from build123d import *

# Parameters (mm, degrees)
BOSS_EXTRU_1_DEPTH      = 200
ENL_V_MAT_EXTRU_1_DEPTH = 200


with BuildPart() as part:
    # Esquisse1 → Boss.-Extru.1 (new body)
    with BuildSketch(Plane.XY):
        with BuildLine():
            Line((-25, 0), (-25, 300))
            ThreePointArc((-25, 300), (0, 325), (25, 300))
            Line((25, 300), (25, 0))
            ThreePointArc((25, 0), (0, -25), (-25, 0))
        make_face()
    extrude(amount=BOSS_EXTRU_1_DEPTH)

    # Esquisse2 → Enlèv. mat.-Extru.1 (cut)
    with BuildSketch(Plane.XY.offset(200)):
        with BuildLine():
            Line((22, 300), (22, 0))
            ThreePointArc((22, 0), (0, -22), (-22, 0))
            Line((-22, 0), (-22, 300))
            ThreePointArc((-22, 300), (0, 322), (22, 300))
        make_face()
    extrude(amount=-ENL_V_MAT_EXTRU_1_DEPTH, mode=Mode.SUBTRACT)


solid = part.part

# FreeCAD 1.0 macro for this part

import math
import FreeCAD as App
import Part
import Sketcher
Q = App.Units.Quantity

doc = App.newDocument("Part")
body = doc.addObject("PartDesign::Body", "Body")

# Sketch on XY plane
sketch1 = doc.addObject("Sketcher::SketchObject", "Sketch")
body.addObject(sketch1)
sketch1.AttachmentSupport = (doc.XY_Plane, [""])
sketch1.MapMode = "FlatFace"
sketch1.addGeometry(Part.LineSegment(App.Vector(-25, 300, 0), App.Vector(-25, 0, 0)), False)
sketch1.addGeometry(Part.ArcOfCircle(Part.Circle(App.Vector(0, 0, 0), App.Vector(0, 0, 1), 25), math.radians(180), math.radians(360)), False)
sketch1.addGeometry(Part.LineSegment(App.Vector(25, 0, 0), App.Vector(25, 300, 0)), False)
sketch1.addGeometry(Part.ArcOfCircle(Part.Circle(App.Vector(0, 300, 0), App.Vector(0, 0, 1), 25), math.radians(0), math.radians(180)), False)
sketch1.addConstraint(Sketcher.Constraint("Tangent", 0, 2, 1, 1))
sketch1.addConstraint(Sketcher.Constraint("Tangent", 1, 2, 2, 1))
sketch1.addConstraint(Sketcher.Constraint("Tangent", 2, 2, 3, 1))
sketch1.addConstraint(Sketcher.Constraint("Tangent", 3, 2, 0, 1))
sketch1.addConstraint(Sketcher.Constraint("Vertical", 0))
sketch1.addConstraint(Sketcher.Constraint("Vertical", 2))
sketch1.addConstraint(Sketcher.Constraint("Coincident", 1, 3, -1, 1))
sketch1.addConstraint(Sketcher.Constraint("Radius", 1, Q("25 mm")))
sketch1.addConstraint(Sketcher.Constraint("DistanceY", 0, 2, 0, 1, Q("300 mm")))
pad1 = doc.addObject("PartDesign::Pad", "Pad")
body.addObject(pad1)
pad1.Profile = sketch1
pad1.Length = 200

# Sketch on XY plane
sketch2 = doc.addObject("Sketcher::SketchObject", "Sketch001")
body.addObject(sketch2)
sketch2.AttachmentSupport = (doc.XY_Plane, [""])
sketch2.MapMode = "FlatFace"
sketch2.AttachmentOffset = App.Placement(App.Vector(0, 0, 200), App.Rotation())
sketch2.addGeometry(Part.LineSegment(App.Vector(22, 0, 0), App.Vector(22, 300, 0)), False)
sketch2.addGeometry(Part.ArcOfCircle(Part.Circle(App.Vector(0, 300, 0), App.Vector(0, 0, 1), 22), math.radians(0), math.radians(180)), False)
sketch2.addGeometry(Part.LineSegment(App.Vector(-22, 300, 0), App.Vector(-22, 0, 0)), False)
sketch2.addGeometry(Part.ArcOfCircle(Part.Circle(App.Vector(0, 0, 0), App.Vector(0, 0, 1), 22), math.radians(180), math.radians(360)), False)
sketch2.addConstraint(Sketcher.Constraint("Tangent", 0, 2, 1, 1))
sketch2.addConstraint(Sketcher.Constraint("Tangent", 1, 2, 2, 1))
sketch2.addConstraint(Sketcher.Constraint("Tangent", 2, 2, 3, 1))
sketch2.addConstraint(Sketcher.Constraint("Tangent", 3, 2, 0, 1))
sketch2.addConstraint(Sketcher.Constraint("Vertical", 0))
sketch2.addConstraint(Sketcher.Constraint("Vertical", 2))
sketch2.addConstraint(Sketcher.Constraint("Coincident", 3, 3, -1, 1))
sketch2.addConstraint(Sketcher.Constraint("Radius", 1, Q("22 mm")))
sketch2.addConstraint(Sketcher.Constraint("DistanceY", 0, 1, 0, 2, Q("300 mm")))
pocket1 = doc.addObject("PartDesign::Pocket", "Pocket")
body.addObject(pocket1)
pocket1.Profile = sketch2
pocket1.Length = 200

doc.recompute()
